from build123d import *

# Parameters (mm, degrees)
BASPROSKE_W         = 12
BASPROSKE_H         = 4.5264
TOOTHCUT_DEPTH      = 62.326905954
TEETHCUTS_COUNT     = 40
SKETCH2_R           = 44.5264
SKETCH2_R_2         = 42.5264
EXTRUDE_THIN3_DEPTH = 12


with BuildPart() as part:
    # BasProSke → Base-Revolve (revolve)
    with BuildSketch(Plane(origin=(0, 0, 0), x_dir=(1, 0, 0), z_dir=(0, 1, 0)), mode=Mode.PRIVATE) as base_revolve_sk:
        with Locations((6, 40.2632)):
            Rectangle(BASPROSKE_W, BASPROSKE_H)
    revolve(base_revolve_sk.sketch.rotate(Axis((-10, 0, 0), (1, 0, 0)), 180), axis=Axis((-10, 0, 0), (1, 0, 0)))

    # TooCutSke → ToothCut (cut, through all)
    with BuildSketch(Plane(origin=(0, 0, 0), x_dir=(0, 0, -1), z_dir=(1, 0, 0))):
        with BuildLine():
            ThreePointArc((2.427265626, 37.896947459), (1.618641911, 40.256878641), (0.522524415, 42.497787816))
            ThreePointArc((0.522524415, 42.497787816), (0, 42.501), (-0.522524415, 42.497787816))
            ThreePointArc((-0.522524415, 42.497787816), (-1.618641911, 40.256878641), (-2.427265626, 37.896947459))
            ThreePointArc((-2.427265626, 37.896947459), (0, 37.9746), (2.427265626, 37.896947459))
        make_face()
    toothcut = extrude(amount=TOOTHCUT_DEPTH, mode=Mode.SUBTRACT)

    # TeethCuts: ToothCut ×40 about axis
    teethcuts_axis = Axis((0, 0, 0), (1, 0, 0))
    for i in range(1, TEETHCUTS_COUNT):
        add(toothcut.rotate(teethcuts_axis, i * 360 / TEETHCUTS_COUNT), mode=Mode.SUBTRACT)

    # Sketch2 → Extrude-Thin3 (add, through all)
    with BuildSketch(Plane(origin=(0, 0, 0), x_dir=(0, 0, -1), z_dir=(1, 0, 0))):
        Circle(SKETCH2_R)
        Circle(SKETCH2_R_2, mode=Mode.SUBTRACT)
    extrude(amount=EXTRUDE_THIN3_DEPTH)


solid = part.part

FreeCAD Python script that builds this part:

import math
import FreeCAD as App
import Part
import Sketcher

V = App.Vector
Q = App.Units.Quantity

doc = App.newDocument("Part")
body = doc.addObject("PartDesign::Body", "Body")

# Sketch on XZ plane
sketch1 = doc.addObject("Sketcher::SketchObject", "Sketch")
body.addObject(sketch1)
sketch1.AttachmentSupport = (doc.XZ_Plane, [""])
sketch1.MapMode = "FlatFace"
sketch1.addGeometry(Part.LineSegment(V(0, -42.5, 0), V(0, -38, 0)), False)
sketch1.addGeometry(Part.LineSegment(V(0, -38, 0), V(12, -38, 0)), False)
sketch1.addGeometry(Part.LineSegment(V(12, -38, 0), V(12, -42.5, 0)), False)
sketch1.addGeometry(Part.LineSegment(V(12, -42.5, 0), V(0, -42.5, 0)), False)
sketch1.addConstraint(Sketcher.Constraint("Coincident", 0, 2, 1, 1))
sketch1.addConstraint(Sketcher.Constraint("Coincident", 1, 2, 2, 1))
sketch1.addConstraint(Sketcher.Constraint("Coincident", 2, 2, 3, 1))
sketch1.addConstraint(Sketcher.Constraint("Coincident", 3, 2, 0, 1))
sketch1.addConstraint(Sketcher.Constraint("Vertical", 0))
sketch1.addConstraint(Sketcher.Constraint("Horizontal", 1))
sketch1.addConstraint(Sketcher.Constraint("Vertical", 2))
sketch1.addConstraint(Sketcher.Constraint("Horizontal", 3))
sketch1.addConstraint(Sketcher.Constraint("PointOnObject", 0, 2, -2))
sketch1.addConstraint(Sketcher.Constraint("DistanceX", 1, 1, 1, 2, Q("12 mm")))
sketch1.addConstraint(Sketcher.Constraint("DistanceY", 0, 2, -1, 1, Q("38 mm")))
sketch1.addConstraint(Sketcher.Constraint("DistanceY", 0, 1, 0, 2, Q("4.5264 mm")))
revolution = doc.addObject("PartDesign::Revolution", "Revolution")
body.addObject(revolution)
revolution.Profile = sketch1
revolution.ReferenceAxis = (sketch1, ["H_Axis"])
revolution.Angle = 360

# Sketch on YZ plane
sketch2 = doc.addObject("Sketcher::SketchObject", "Sketch001")
body.addObject(sketch2)
sketch2.AttachmentSupport = (doc.YZ_Plane, [""])
sketch2.MapMode = "FlatFace"
sketch2.addGeometry(Part.ArcOfCircle(Part.Circle(V(32.6, 16.9, 0), V(0, 0, 1), 20), math.radians(-74.66), math.radians(-60.36)), False)
sketch2.addGeometry(Part.ArcOfCircle(Part.Circle(V(0, 0, 0), V(0, 0, 1), 42.5), math.radians(-0.7), math.radians(0.7)), False)
sketch2.addGeometry(Part.ArcOfCircle(Part.Circle(V(32.6, -16.9, 0), V(0, 0, 1), 20), math.radians(60.36), math.radians(74.66)), False)
sketch2.addGeometry(Part.ArcOfCircle(Part.Circle(V(0, 0, 0), V(0, 0, 1), 38), math.radians(-3.66), math.radians(3.66)), False)
sketch2.addConstraint(Sketcher.Constraint("Coincident", 0, 2, 1, 1))
sketch2.addConstraint(Sketcher.Constraint("Coincident", 1, 2, 2, 1))
sketch2.addConstraint(Sketcher.Constraint("Coincident", 2, 2, 3, 2))
sketch2.addConstraint(Sketcher.Constraint("Coincident", 3, 1, 0, 1))
sketch2.addConstraint(Sketcher.Constraint("Coincident", 1, 3, -1, 1))
sketch2.addConstraint(Sketcher.Constraint("Coincident", 3, 3, -1, 1))
sketch2.addConstraint(Sketcher.Constraint("Equal", 0, 2))
sketch2.addConstraint(Sketcher.Constraint("Symmetric", 0, 3, 2, 3, -1))
sketch2.addConstraint(Sketcher.Constraint("Radius", 0, Q("20 mm")))
sketch2.addConstraint(Sketcher.Constraint("Radius", 3, Q("37.9746 mm")))
sketch2.addConstraint(Sketcher.Constraint("Radius", 1, Q("42.501003 mm")))
sketch2.addConstraint(Sketcher.Constraint("DistanceX", -1, 1, 0, 3, Q("32.606602 mm")))
sketch2.addConstraint(Sketcher.Constraint("DistanceY", 2, 3, 0, 2, Q("16.337829 mm")))
pocket1 = doc.addObject("PartDesign::Pocket", "Pocket")
body.addObject(pocket1)
pocket1.Profile = sketch2
pocket1.Type = "ThroughAll"
pocket1.Reversed = True
doc.recompute()

polarpattern = doc.addObject("PartDesign::PolarPattern", "PolarPattern")
body.addObject(polarpattern)
polarpattern.Originals = [pocket1]
polarpattern.Axis = (doc.X_Axis, [""])
polarpattern.Angle = 360
polarpattern.Occurrences = 40
body.Tip = polarpattern

# Sketch on YZ plane
sketch3 = doc.addObject("Sketcher::SketchObject", "Sketch002")
body.addObject(sketch3)
sketch3.AttachmentSupport = (doc.YZ_Plane, [""])
sketch3.MapMode = "FlatFace"
sketch3.addGeometry(Part.Circle(V(0, 0, 0), V(0, 0, 1), 45), False)
sketch3.addGeometry(Part.Circle(V(0, 0, 0), V(0, 0, 1), 43), False)
sketch3.addConstraint(Sketcher.Constraint("Coincident", 0, 3, -1, 1))
sketch3.addConstraint(Sketcher.Constraint("Coincident", 1, 3, -1, 1))
sketch3.addConstraint(Sketcher.Constraint("Diameter", 0, Q("89.0528 mm")))
sketch3.addConstraint(Sketcher.Constraint("Diameter", 1, Q("85.0528 mm")))
pad1 = doc.addObject("PartDesign::Pad", "Pad")
body.addObject(pad1)
pad1.Profile = sketch3
pad1.Length = 12

doc.recompute()
